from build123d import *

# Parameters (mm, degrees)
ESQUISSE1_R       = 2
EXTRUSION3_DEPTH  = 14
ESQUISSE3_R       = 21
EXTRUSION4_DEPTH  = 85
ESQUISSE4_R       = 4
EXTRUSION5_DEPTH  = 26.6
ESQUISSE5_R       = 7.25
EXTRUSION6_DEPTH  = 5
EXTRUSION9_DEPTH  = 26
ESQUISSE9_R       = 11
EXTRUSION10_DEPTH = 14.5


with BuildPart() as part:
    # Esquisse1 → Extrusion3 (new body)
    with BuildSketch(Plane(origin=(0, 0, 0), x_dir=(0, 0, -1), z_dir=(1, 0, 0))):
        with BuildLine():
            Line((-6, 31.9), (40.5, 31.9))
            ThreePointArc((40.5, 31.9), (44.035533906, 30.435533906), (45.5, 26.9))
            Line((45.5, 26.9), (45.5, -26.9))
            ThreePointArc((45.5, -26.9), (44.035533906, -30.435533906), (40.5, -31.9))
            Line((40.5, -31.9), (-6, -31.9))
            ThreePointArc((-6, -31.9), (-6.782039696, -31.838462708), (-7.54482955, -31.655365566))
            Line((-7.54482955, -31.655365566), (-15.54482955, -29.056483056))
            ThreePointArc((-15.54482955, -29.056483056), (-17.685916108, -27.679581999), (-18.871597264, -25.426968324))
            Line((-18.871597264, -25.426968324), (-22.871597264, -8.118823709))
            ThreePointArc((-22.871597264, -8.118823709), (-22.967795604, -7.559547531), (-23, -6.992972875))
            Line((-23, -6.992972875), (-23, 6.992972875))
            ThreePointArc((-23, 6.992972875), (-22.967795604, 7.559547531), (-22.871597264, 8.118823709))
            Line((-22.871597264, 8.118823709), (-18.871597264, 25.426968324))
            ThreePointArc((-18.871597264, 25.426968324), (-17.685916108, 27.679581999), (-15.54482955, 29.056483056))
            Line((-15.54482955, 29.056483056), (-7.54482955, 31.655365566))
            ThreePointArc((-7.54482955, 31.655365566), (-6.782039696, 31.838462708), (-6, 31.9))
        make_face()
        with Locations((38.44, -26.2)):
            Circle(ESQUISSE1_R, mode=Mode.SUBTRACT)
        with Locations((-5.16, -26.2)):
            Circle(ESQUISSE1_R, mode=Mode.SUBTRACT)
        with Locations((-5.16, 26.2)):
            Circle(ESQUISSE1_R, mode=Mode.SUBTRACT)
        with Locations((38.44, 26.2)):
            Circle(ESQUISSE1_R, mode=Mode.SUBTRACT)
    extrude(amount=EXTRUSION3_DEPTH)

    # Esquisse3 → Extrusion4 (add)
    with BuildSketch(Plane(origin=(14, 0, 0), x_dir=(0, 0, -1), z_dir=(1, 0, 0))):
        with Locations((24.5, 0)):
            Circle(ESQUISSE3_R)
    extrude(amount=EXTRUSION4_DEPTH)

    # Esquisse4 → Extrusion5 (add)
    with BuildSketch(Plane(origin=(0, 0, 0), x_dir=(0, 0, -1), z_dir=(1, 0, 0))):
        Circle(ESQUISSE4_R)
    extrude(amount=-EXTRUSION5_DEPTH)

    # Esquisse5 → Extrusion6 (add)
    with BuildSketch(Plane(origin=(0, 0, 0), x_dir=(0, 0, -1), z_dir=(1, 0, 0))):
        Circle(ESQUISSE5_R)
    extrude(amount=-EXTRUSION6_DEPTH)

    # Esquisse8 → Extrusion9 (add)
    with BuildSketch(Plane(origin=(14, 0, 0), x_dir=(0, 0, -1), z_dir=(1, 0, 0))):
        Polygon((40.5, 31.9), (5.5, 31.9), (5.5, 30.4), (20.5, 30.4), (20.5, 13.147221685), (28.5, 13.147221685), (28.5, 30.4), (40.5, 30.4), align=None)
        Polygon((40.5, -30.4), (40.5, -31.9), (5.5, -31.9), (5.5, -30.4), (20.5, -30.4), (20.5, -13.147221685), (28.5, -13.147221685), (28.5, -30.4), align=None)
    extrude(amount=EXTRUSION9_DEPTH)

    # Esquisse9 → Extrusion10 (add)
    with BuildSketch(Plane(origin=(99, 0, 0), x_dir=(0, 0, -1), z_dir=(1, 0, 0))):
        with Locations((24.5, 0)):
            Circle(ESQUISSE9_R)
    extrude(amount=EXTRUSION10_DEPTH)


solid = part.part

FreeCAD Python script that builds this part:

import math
import FreeCAD as App
import Part
import Sketcher

V = App.Vector

doc = App.newDocument("Part")
body = doc.addObject("PartDesign::Body", "Body")

# Sketch on YZ plane
sketch1 = body.newObject("Sketcher::SketchObject", "Sketch")
sketch1.AttachmentSupport = (doc.getObject("YZ_Plane"), [""])
sketch1.MapMode = "FlatFace"
sketch1.addGeometry([
    Part.LineSegment(V(31.9, -40.5, 0), V(31.9, 6, 0)),  # 0
    Part.ArcOfCircle(Part.Circle(V(26.9, 6, 0), V(0, 0, 1), 5), math.radians(0), math.radians(18)),  # 1
    Part.LineSegment(V(31.7, 7.5, 0), V(29.1, 15.5, 0)),  # 2
    Part.ArcOfCircle(Part.Circle(V(24.3, 14, 0), V(0, 0, 1), 5), math.radians(18), math.radians(77)),  # 3
    Part.LineSegment(V(25.4, 18.9, 0), V(8.1, 22.9, 0)),  # 4
    Part.ArcOfCircle(Part.Circle(V(7, 18, 0), V(0, 0, 1), 5), math.radians(76.99), math.radians(90)),  # 5
    Part.LineSegment(V(7, 23, 0), V(-7, 23, 0)),  # 6
    Part.ArcOfCircle(Part.Circle(V(-7, 18, 0), V(0, 0, 1), 5), math.radians(90), math.radians(103.01)),  # 7
    Part.LineSegment(V(-8.1, 22.9, 0), V(-25.4, 18.9, 0)),  # 8
    Part.ArcOfCircle(Part.Circle(V(-24.3, 14, 0), V(0, 0, 1), 5), math.radians(103), math.radians(162)),  # 9
    Part.LineSegment(V(-29.1, 15.5, 0), V(-31.7, 7.5, 0)),  # 10
    Part.ArcOfCircle(Part.Circle(V(-26.9, 6, 0), V(0, 0, 1), 5), math.radians(162), math.radians(180)),  # 11
    Part.LineSegment(V(-31.9, 6, 0), V(-31.9, -40.5, 0)),  # 12
    Part.ArcOfCircle(Part.Circle(V(-26.9, -40.5, 0), V(0, 0, 1), 5), math.radians(180), math.radians(270)),  # 13
    Part.LineSegment(V(-26.9, -45.5, 0), V(26.9, -45.5, 0)),  # 14
    Part.ArcOfCircle(Part.Circle(V(26.9, -40.5, 0), V(0, 0, 1), 5), math.radians(-90), math.radians(0)),  # 15
    Part.Circle(V(-26.2, -38.4, 0), V(0, 0, 1), 2),  # 16
    Part.Circle(V(-26.2, 5.2, 0), V(0, 0, 1), 2),  # 17
    Part.Circle(V(26.2, -38.4, 0), V(0, 0, 1), 2),  # 18
    Part.Circle(V(26.2, 5.2, 0), V(0, 0, 1), 2),  # 19
], False)
sketch1.addConstraint([
    Sketcher.Constraint("Tangent", 0, 2, 1, 1),
    Sketcher.Constraint("Tangent", 1, 2, 2, 1),
    Sketcher.Constraint("Tangent", 2, 2, 3, 1),
    Sketcher.Constraint("Tangent", 3, 2, 4, 1),
    Sketcher.Constraint("Tangent", 4, 2, 5, 1),
    Sketcher.Constraint("Tangent", 5, 2, 6, 1),
    Sketcher.Constraint("Tangent", 6, 2, 7, 1),
    Sketcher.Constraint("Tangent", 7, 2, 8, 1),
    Sketcher.Constraint("Tangent", 8, 2, 9, 1),
    Sketcher.Constraint("Tangent", 9, 2, 10, 1),
    Sketcher.Constraint("Tangent", 10, 2, 11, 1),
    Sketcher.Constraint("Tangent", 11, 2, 12, 1),
    Sketcher.Constraint("Tangent", 12, 2, 13, 1),
    Sketcher.Constraint("Tangent", 13, 2, 14, 1),
    Sketcher.Constraint("Tangent", 14, 2, 15, 1),
    Sketcher.Constraint("Tangent", 15, 2, 0, 1),
    Sketcher.Constraint("Vertical", 0),
    Sketcher.Constraint("Horizontal", 6),
    Sketcher.Constraint("Vertical", 12),
    Sketcher.Constraint("Horizontal", 14),
    Sketcher.Constraint("Equal", 1, 3),
    Sketcher.Constraint("Equal", 3, 5),
    Sketcher.Constraint("Equal", 5, 7),
    Sketcher.Constraint("Equal", 7, 9),
    Sketcher.Constraint("Equal", 9, 11),
    Sketcher.Constraint("Equal", 11, 13),
    Sketcher.Constraint("Equal", 13, 15),
    Sketcher.Constraint("Equal", 16, 17),
    Sketcher.Constraint("Equal", 17, 18),
    Sketcher.Constraint("Equal", 18, 19),
    Sketcher.Constraint("Symmetric", 3, 3, 9, 3, -2),
    Sketcher.Constraint("Symmetric", 1, 3, 11, 3, -2),
    Sketcher.Constraint("Symmetric", 16, 3, 18, 3, -2),
    Sketcher.Constraint("Symmetric", 17, 3, 19, 3, -2),
    Sketcher.Constraint("Horizontal", 4, 2, 7, 2),
    Sketcher.Constraint("Vertical", 16, 3, 17, 3),
    Sketcher.Constraint("Diameter", 16, 4.0),
    Sketcher.Constraint("Radius", 1, 5.0),
    Sketcher.Constraint("DistanceX", 14, 1, 14, 2, 53.8),
    Sketcher.Constraint("DistanceY", 0, 1, 0, 2, 46.5),
    Sketcher.Constraint("DistanceY", -1, 1, 1, 3, 6.0),
    Sketcher.Constraint("DistanceY", -1, 1, 3, 3, 14.0),
    Sketcher.Constraint("DistanceY", -1, 1, 5, 3, 18.0),
    Sketcher.Constraint("DistanceX", 16, 3, -1, 1, 26.2),
    Sketcher.Constraint("DistanceY", 16, 3, 17, 3, 43.6),
    Sketcher.Constraint("DistanceY", 16, 3, -1, 1, 38.44),
    Sketcher.Constraint("Distance", 2, 8.411551),
    Sketcher.Constraint("DistanceX", 6, 2, 6, 1, 13.985946),
])
pad1 = body.newObject("PartDesign::Pad", "Pad")
pad1.Profile = sketch1
pad1.Length = 14

# Sketch on YZ plane
sketch2 = body.newObject("Sketcher::SketchObject", "Sketch001")
sketch2.AttachmentSupport = (doc.getObject("YZ_Plane"), [""])
sketch2.MapMode = "FlatFace"
sketch2.AttachmentOffset = App.Placement(V(0, 0, 14), App.Rotation())
sketch2.addGeometry(Part.Circle(V(0, -24, 0), V(0, 0, 1), 21), False)
sketch2.addConstraint([
    Sketcher.Constraint("PointOnObject", 0, 3, -2),
    Sketcher.Constraint("Diameter", 0, 42.0),
    Sketcher.Constraint("DistanceY", 0, 3, -1, 1, 24.5),
])
pad2 = body.newObject("PartDesign::Pad", "Pad001")
pad2.Profile = sketch2
pad2.Length = 85

# Sketch on YZ plane
sketch3 = body.newObject("Sketcher::SketchObject", "Sketch002")
sketch3.AttachmentSupport = (doc.getObject("YZ_Plane"), [""])
sketch3.MapMode = "FlatFace"
sketch3.addGeometry(Part.Circle(V(0, 0, 0), V(0, 0, 1), 4), False)
sketch3.addConstraint([
    Sketcher.Constraint("Coincident", 0, 3, -1, 1),
    Sketcher.Constraint("Diameter", 0, 8.0),
])
pad3 = body.newObject("PartDesign::Pad", "Pad002")
pad3.Profile = sketch3
pad3.Length = 26.6
pad3.Reversed = True

# Sketch on YZ plane
sketch4 = body.newObject("Sketcher::SketchObject", "Sketch003")
sketch4.AttachmentSupport = (doc.getObject("YZ_Plane"), [""])
sketch4.MapMode = "FlatFace"
sketch4.addGeometry(Part.Circle(V(0, 0, 0), V(0, 0, 1), 7), False)
sketch4.addConstraint([
    Sketcher.Constraint("Coincident", 0, 3, -1, 1),
    Sketcher.Constraint("Diameter", 0, 14.5),
])
pad4 = body.newObject("PartDesign::Pad", "Pad003")
pad4.Profile = sketch4
pad4.Length = 5
pad4.Reversed = True

# Sketch on YZ plane
sketch5 = body.newObject("Sketcher::SketchObject", "Sketch004")
sketch5.AttachmentSupport = (doc.getObject("YZ_Plane"), [""])
sketch5.MapMode = "FlatFace"
sketch5.AttachmentOffset = App.Placement(V(0, 0, 14), App.Rotation())
sketch5.addGeometry([
    Part.LineSegment(V(31.9, -40.5, 0), V(31.9, -5.5, 0)),  # 0
    Part.LineSegment(V(31.9, -5.5, 0), V(30.4, -5.5, 0)),  # 1
    Part.LineSegment(V(30.4, -5.5, 0), V(30.4, -20.5, 0)),  # 2
    Part.LineSegment(V(30.4, -20.5, 0), V(13.1, -20.5, 0)),  # 3
    Part.LineSegment(V(13.1, -20.5, 0), V(13.1, -28.5, 0)),  # 4
    Part.LineSegment(V(13.1, -28.5, 0), V(30.4, -28.5, 0)),  # 5
    Part.LineSegment(V(30.4, -28.5, 0), V(30.4, -40.5, 0)),  # 6
    Part.LineSegment(V(30.4, -40.5, 0), V(31.9, -40.5, 0)),  # 7
    Part.LineSegment(V(-31.9, -40.5, 0), V(-30.4, -40.5, 0)),  # 8
    Part.LineSegment(V(-30.4, -40.5, 0), V(-30.4, -28.5, 0)),  # 9
    Part.LineSegment(V(-30.4, -28.5, 0), V(-13.1, -28.5, 0)),  # 10
    Part.LineSegment(V(-13.1, -28.5, 0), V(-13.1, -20.5, 0)),  # 11
    Part.LineSegment(V(-13.1, -20.5, 0), V(-30.4, -20.5, 0)),  # 12
    Part.LineSegment(V(-30.4, -20.5, 0), V(-30.4, -5.5, 0)),  # 13
    Part.LineSegment(V(-30.4, -5.5, 0), V(-31.9, -5.5, 0)),  # 14
    Part.LineSegment(V(-31.9, -5.5, 0), V(-31.9, -40.5, 0)),  # 15
], False)
sketch5.addConstraint([
    Sketcher.Constraint("Coincident", 0, 2, 1, 1),
    Sketcher.Constraint("Coincident", 1, 2, 2, 1),
    Sketcher.Constraint("Coincident", 2, 2, 3, 1),
    Sketcher.Constraint("Coincident", 3, 2, 4, 1),
    Sketcher.Constraint("Coincident", 4, 2, 5, 1),
    Sketcher.Constraint("Coincident", 5, 2, 6, 1),
    Sketcher.Constraint("Coincident", 6, 2, 7, 1),
    Sketcher.Constraint("Coincident", 7, 2, 0, 1),
    Sketcher.Constraint("Coincident", 8, 2, 9, 1),
    Sketcher.Constraint("Coincident", 9, 2, 10, 1),
    Sketcher.Constraint("Coincident", 10, 2, 11, 1),
    Sketcher.Constraint("Coincident", 11, 2, 12, 1),
    Sketcher.Constraint("Coincident", 12, 2, 13, 1),
    Sketcher.Constraint("Coincident", 13, 2, 14, 1),
    Sketcher.Constraint("Coincident", 14, 2, 15, 1),
    Sketcher.Constraint("Coincident", 15, 2, 8, 1),
    Sketcher.Constraint("Vertical", 0),
    Sketcher.Constraint("Horizontal", 1),
    Sketcher.Constraint("Vertical", 2),
    Sketcher.Constraint("Horizontal", 3),
    Sketcher.Constraint("Vertical", 4),
    Sketcher.Constraint("Horizontal", 5),
    Sketcher.Constraint("Vertical", 6),
    Sketcher.Constraint("Horizontal", 7),
    Sketcher.Constraint("Horizontal", 8),
    Sketcher.Constraint("Vertical", 9),
    Sketcher.Constraint("Horizontal", 10),
    Sketcher.Constraint("Vertical", 11),
    Sketcher.Constraint("Horizontal", 12),
    Sketcher.Constraint("Vertical", 13),
    Sketcher.Constraint("Horizontal", 14),
    Sketcher.Constraint("Vertical", 15),
    Sketcher.Constraint("Symmetric", 6, 2, 8, 2, -2),
    Sketcher.Constraint("Symmetric", 4, 2, 10, 2, -2),
    Sketcher.Constraint("Symmetric", 2, 2, 12, 2, -2),
    Sketcher.Constraint("Symmetric", 0, 2, 14, 2, -2),
    Sketcher.Constraint("Vertical", 2, 2, 5, 2),
    Sketcher.Constraint("DistanceY", 0, 1, 0, 2, 35.0),
    Sketcher.Constraint("DistanceY", 2, 2, 2, 1, 15.0),
    Sketcher.Constraint("DistanceY", 4, 2, 4, 1, 8.0),
    Sketcher.Constraint("DistanceX", 1, 2, 1, 1, 1.5),
    Sketcher.Constraint("DistanceX", -1, 1, 0, 2, 31.9),
    Sketcher.Constraint("DistanceY", 0, 2, -1, 1, 5.5),
    Sketcher.Constraint("DistanceX", 3, 2, 3, 1, 17.252778),
])
pad5 = body.newObject("PartDesign::Pad", "Pad004")
pad5.Profile = sketch5
pad5.Length = 26

# Sketch on YZ plane
sketch6 = body.newObject("Sketcher::SketchObject", "Sketch005")
sketch6.AttachmentSupport = (doc.getObject("YZ_Plane"), [""])
sketch6.MapMode = "FlatFace"
sketch6.AttachmentOffset = App.Placement(V(0, 0, 99), App.Rotation())
sketch6.addGeometry(Part.Circle(V(0, -24, 0), V(0, 0, 1), 11), False)
sketch6.addConstraint([
    Sketcher.Constraint("PointOnObject", 0, 3, -2),
    Sketcher.Constraint("Diameter", 0, 22.0),
    Sketcher.Constraint("DistanceY", 0, 3, -1, 1, 24.5),
])
pad6 = body.newObject("PartDesign::Pad", "Pad005")
pad6.Profile = sketch6
pad6.Length = 14.5

doc.recompute()
